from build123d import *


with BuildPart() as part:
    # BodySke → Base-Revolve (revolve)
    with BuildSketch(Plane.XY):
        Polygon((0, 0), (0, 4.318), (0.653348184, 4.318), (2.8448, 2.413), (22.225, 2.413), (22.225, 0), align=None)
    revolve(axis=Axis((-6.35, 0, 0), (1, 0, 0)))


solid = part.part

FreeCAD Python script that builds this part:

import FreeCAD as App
import Part
import Sketcher
Q = App.Units.Quantity


def add_polygon(sketch, points):
    """Adds a closed chain of lines whose ends are joined by coincident constraints."""
    first, n = sketch.GeometryCount, len(points)
    for a, b in zip(points, points[1:] + points[:1]):
        sketch.addGeometry(Part.LineSegment(App.Vector(*a, 0), App.Vector(*b, 0)), False)
    for i in range(n):
        sketch.addConstraint(Sketcher.Constraint("Coincident", first + i, 2, first + (i + 1) % n, 1))

doc = App.newDocument("Part")
body = doc.addObject("PartDesign::Body", "Body")

sketch1 = doc.addObject("Sketcher::SketchObject", "Sketch")
body.addObject(sketch1)
sketch1.AttachmentSupport = (doc.XY_Plane, [""])
sketch1.MapMode = "FlatFace"
add_polygon(sketch1, [(0, 4.3), (0, 0), (22.2, 0), (22.2, 2.4), (2.8, 2.4), (0.7, 4.3)])
sketch1.addConstraint([
    Sketcher.Constraint("Vertical", 0),
    Sketcher.Constraint("Horizontal", 1),
    Sketcher.Constraint("Vertical", 2),
    Sketcher.Constraint("Horizontal", 3),
    Sketcher.Constraint("Horizontal", 5),
    Sketcher.Constraint("Coincident", 0, 2, -1, 1),
    Sketcher.Constraint("Angle", 4, Q("139 deg")),
    Sketcher.Constraint("DistanceY", 0, 2, 0, 1, Q("0.17 in")),
    Sketcher.Constraint("DistanceX", 1, 1, 1, 2, Q("0.875 in")),
    Sketcher.Constraint("DistanceX", 3, 2, 3, 1, Q("0.763 in")),
    Sketcher.Constraint("DistanceY", 2, 1, 2, 2, Q("0.095 in")),
])
revolution = doc.addObject("PartDesign::Revolution", "Revolution")
body.addObject(revolution)
revolution.Profile = sketch1
revolution.ReferenceAxis = (sketch1, ["H_Axis"])
revolution.Angle = 360

doc.recompute()
